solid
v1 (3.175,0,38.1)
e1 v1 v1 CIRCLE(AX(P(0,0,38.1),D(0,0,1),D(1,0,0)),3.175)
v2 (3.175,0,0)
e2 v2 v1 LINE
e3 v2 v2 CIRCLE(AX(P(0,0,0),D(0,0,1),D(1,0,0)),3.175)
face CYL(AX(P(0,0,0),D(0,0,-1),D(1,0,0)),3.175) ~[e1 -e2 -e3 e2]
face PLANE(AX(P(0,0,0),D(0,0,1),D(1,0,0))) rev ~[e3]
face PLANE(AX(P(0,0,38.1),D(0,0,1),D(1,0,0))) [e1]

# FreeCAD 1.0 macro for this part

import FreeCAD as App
import Part
import Sketcher

V = App.Vector
Q = App.Units.Quantity

doc = App.newDocument("Part")
body = doc.addObject("PartDesign::Body", "Body")

# Sketch on XY plane
sketch1 = body.newObject("Sketcher::SketchObject", "Sketch")
sketch1.AttachmentSupport = (doc.getObject("XY_Plane"), [""])
sketch1.MapMode = "FlatFace"
sketch1.addGeometry(Part.Circle(V(0, 0, 0), V(0, 0, 1), 3.2), False)
sketch1.addConstraint(Sketcher.Constraint("Coincident", 0, 3, -1, 1))
sketch1.addConstraint(Sketcher.Constraint("Diameter", 0, Q("0.25 in")))
pad1 = body.newObject("PartDesign::Pad", "Pad")
pad1.Profile = sketch1
pad1.Length = Q("1.5 in")

doc.recompute()
